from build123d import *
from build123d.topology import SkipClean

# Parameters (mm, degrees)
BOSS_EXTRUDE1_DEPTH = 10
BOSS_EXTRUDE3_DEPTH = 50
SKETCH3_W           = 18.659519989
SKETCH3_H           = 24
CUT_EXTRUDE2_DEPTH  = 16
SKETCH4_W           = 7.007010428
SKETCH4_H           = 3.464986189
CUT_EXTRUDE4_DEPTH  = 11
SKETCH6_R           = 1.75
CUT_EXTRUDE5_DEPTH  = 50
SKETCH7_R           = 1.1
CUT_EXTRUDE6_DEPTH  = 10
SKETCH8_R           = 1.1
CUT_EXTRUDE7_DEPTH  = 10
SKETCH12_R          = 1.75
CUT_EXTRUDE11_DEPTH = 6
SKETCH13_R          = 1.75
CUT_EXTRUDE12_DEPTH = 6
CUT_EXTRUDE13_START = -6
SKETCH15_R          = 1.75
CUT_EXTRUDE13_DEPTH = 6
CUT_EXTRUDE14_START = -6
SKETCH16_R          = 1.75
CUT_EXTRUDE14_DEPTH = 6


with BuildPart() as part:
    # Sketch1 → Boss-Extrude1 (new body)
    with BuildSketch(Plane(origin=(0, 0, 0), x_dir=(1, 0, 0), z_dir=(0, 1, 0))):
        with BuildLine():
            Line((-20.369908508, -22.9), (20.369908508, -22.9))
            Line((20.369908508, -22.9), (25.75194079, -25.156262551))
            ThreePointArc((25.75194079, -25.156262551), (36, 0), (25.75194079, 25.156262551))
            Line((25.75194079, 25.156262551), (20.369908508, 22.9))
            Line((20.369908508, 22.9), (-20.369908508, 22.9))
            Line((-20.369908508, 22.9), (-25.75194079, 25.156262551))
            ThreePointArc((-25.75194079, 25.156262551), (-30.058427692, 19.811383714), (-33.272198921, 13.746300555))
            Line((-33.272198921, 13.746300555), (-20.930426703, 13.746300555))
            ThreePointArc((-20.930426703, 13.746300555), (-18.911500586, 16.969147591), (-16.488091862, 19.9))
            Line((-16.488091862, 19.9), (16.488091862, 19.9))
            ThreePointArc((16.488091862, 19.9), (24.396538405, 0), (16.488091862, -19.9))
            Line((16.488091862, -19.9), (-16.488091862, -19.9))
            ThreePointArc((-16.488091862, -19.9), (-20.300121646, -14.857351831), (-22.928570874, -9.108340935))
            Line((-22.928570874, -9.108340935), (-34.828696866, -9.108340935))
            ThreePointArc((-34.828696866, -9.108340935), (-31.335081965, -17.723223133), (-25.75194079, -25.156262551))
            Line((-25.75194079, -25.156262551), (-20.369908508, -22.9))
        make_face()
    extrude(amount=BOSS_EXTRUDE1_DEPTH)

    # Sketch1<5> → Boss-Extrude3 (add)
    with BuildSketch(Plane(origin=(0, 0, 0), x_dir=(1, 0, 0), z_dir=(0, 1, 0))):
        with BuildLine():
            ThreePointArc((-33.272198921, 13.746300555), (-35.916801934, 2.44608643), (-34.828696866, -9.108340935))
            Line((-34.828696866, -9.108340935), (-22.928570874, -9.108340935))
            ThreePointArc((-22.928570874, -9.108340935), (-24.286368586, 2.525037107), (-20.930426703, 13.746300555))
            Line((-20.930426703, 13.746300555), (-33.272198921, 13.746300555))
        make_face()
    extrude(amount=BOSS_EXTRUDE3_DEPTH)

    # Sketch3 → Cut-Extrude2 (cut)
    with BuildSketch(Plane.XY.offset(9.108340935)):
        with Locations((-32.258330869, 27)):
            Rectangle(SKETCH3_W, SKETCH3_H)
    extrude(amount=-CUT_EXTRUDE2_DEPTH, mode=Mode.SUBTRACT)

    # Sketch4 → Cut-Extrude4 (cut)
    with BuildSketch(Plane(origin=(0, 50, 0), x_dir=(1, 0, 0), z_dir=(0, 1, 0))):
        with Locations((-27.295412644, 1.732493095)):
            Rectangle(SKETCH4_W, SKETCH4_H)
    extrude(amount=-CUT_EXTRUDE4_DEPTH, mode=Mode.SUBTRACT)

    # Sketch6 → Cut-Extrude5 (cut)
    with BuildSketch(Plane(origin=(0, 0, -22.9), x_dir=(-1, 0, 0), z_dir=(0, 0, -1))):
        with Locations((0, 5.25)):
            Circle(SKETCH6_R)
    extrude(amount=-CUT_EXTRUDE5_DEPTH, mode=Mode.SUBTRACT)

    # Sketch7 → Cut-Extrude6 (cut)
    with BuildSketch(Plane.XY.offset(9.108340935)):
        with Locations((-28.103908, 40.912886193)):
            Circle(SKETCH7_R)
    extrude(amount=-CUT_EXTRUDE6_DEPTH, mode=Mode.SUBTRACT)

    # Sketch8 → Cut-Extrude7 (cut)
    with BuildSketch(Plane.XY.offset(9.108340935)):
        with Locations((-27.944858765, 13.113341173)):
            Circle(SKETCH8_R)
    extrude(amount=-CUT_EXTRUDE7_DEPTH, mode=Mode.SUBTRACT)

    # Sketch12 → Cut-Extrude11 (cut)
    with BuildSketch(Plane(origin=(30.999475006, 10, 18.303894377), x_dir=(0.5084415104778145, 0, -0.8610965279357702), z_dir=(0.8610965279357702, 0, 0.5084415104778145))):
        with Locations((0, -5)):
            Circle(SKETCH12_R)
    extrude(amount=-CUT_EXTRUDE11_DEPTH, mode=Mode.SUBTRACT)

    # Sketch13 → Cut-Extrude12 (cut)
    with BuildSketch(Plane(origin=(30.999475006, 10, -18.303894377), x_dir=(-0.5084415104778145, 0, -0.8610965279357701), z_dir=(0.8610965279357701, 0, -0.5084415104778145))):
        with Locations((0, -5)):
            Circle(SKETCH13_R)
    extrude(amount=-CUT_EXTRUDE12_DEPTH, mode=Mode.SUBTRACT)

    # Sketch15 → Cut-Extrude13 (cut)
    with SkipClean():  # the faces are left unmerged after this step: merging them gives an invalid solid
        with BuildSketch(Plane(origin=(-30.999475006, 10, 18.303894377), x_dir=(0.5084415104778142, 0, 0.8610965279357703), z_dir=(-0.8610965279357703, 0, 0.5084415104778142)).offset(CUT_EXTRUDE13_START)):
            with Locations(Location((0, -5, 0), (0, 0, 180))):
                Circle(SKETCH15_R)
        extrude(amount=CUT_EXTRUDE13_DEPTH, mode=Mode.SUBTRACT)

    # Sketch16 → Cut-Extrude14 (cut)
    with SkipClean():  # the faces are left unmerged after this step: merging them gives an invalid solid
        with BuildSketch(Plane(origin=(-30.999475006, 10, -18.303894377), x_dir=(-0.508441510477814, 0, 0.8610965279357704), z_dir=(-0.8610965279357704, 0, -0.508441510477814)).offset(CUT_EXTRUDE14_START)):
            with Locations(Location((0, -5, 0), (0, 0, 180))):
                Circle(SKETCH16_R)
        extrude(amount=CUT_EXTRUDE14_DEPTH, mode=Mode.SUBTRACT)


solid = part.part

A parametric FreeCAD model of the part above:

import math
import FreeCAD as App
import Part
import Sketcher


def add_polygon(sketch, points):
    """Adds a closed chain of lines whose ends are joined by coincident constraints."""
    first, n = sketch.GeometryCount, len(points)
    for a, b in zip(points, points[1:] + points[:1]):
        sketch.addGeometry(Part.LineSegment(App.Vector(*a, 0), App.Vector(*b, 0)), False)
    for i in range(n):
        sketch.addConstraint(Sketcher.Constraint("Coincident", first + i, 2, first + (i + 1) % n, 1))

doc = App.newDocument("Part")
params = doc.addObject("Spreadsheet::Sheet", "Params")
for row, (alias, value) in enumerate([
    ("sketch1_radius", "36 mm"),
    ("pad1_length", "10 mm"),
    ("sketch2_radius", "36 mm"),
    ("pad2_length", "50 mm"),
    ("sketch3_height", "24 mm"),
    ("pocket1_length", "16 mm"),
    ("pocket2_length", "11 mm"),
    ("sketch5_diameter", "3.5 mm"),
    ("pocket3_length", "50 mm"),
    ("sketch6_diameter", "2.2 mm"),
    ("pocket4_length", "10 mm"),
    ("sketch7_diameter", "2.2 mm"),
    ("pocket5_length", "10 mm"),
    ("sketch8_diameter", "3.5 mm"),
    ("pocket6_length", "6 mm"),
    ("sketch9_diameter", "3.5 mm"),
    ("pocket7_length", "6 mm"),
    ("sketch10_diameter", "3.5 mm"),
    ("pocket8_length", "6 mm"),
    ("sketch11_diameter", "3.5 mm"),
    ("pocket9_length", "6 mm"),
], start=1):
    params.set(f"A{row}", alias)
    params.set(f"B{row}", "=" + value)
    params.setAlias(f"B{row}", alias)

body = doc.addObject("PartDesign::Body", "Body")

sketch1 = doc.addObject("Sketcher::SketchObject", "Sketch")
body.addObject(sketch1)
sketch1.AttachmentSupport = (doc.XZ_Plane, [""])
sketch1.MapMode = "FlatFace"
sketch1.addGeometry(Part.LineSegment(App.Vector(-20, 23, 0), App.Vector(20, 23, 0)), False)
sketch1.addGeometry(Part.LineSegment(App.Vector(20, 23, 0), App.Vector(26, 25, 0)), False)
sketch1.addGeometry(Part.ArcOfCircle(Part.Circle(App.Vector(0, 0, 0), App.Vector(0, 0, 1), 36), math.radians(-44), math.radians(44)), False)
sketch1.addGeometry(Part.LineSegment(App.Vector(26, -25, 0), App.Vector(20, -23, 0)), False)
sketch1.addGeometry(Part.LineSegment(App.Vector(20, -23, 0), App.Vector(-20, -23, 0)), False)
sketch1.addGeometry(Part.LineSegment(App.Vector(-20, -23, 0), App.Vector(-26, -25, 0)), False)
sketch1.addGeometry(Part.ArcOfCircle(Part.Circle(App.Vector(0, 0, 0), App.Vector(0, 0, 1), 36), math.radians(-158), math.radians(-136)), False)
sketch1.addGeometry(Part.LineSegment(App.Vector(-33, -14, 0), App.Vector(-21, -14, 0)), False)
sketch1.addGeometry(Part.ArcOfCircle(Part.Circle(App.Vector(5, 0, 0), App.Vector(0, 0, 1), 29), math.radians(-151.7), math.radians(-136.65)), False)
sketch1.addGeometry(Part.LineSegment(App.Vector(-16, -20, 0), App.Vector(16, -20, 0)), False)
sketch1.addGeometry(Part.ArcOfCircle(Part.Circle(App.Vector(-5, 0, 0), App.Vector(0, 0, 1), 29), math.radians(-43), math.radians(43)), False)
sketch1.addGeometry(Part.LineSegment(App.Vector(16, 20, 0), App.Vector(-16, 20, 0)), False)
sketch1.addGeometry(Part.ArcOfCircle(Part.Circle(App.Vector(5, 0, 0), App.Vector(0, 0, 1), 29), math.radians(137), math.radians(162)), False)
sketch1.addGeometry(Part.LineSegment(App.Vector(-23, 9, 0), App.Vector(-35, 9, 0)), False)
sketch1.addGeometry(Part.ArcOfCircle(Part.Circle(App.Vector(0, 0, 0), App.Vector(0, 0, 1), 36), math.radians(136), math.radians(165)), False)
sketch1.addGeometry(Part.LineSegment(App.Vector(-26, 25, 0), App.Vector(-20, 23, 0)), False)
sketch1.addConstraint(Sketcher.Constraint("Coincident", 0, 2, 1, 1))
sketch1.addConstraint(Sketcher.Constraint("Coincident", 1, 2, 2, 2))
sketch1.addConstraint(Sketcher.Constraint("Coincident", 2, 1, 3, 1))
sketch1.addConstraint(Sketcher.Constraint("Coincident", 3, 2, 4, 1))
sketch1.addConstraint(Sketcher.Constraint("Coincident", 4, 2, 5, 1))
sketch1.addConstraint(Sketcher.Constraint("Coincident", 5, 2, 6, 2))
sketch1.addConstraint(Sketcher.Constraint("Coincident", 6, 1, 7, 1))
sketch1.addConstraint(Sketcher.Constraint("Coincident", 7, 2, 8, 1))
sketch1.addConstraint(Sketcher.Constraint("Coincident", 8, 2, 9, 1))
sketch1.addConstraint(Sketcher.Constraint("Coincident", 9, 2, 10, 1))
sketch1.addConstraint(Sketcher.Constraint("Coincident", 10, 2, 11, 1))
sketch1.addConstraint(Sketcher.Constraint("Coincident", 11, 2, 12, 1))
sketch1.addConstraint(Sketcher.Constraint("Coincident", 12, 2, 13, 1))
sketch1.addConstraint(Sketcher.Constraint("Coincident", 13, 2, 14, 2))
sketch1.addConstraint(Sketcher.Constraint("Coincident", 14, 1, 15, 1))
sketch1.addConstraint(Sketcher.Constraint("Coincident", 15, 2, 0, 1))
sketch1.addConstraint(Sketcher.Constraint("Horizontal", 0))
sketch1.addConstraint(Sketcher.Constraint("Horizontal", 4))
sketch1.addConstraint(Sketcher.Constraint("Horizontal", 7))
sketch1.addConstraint(Sketcher.Constraint("Horizontal", 9))
sketch1.addConstraint(Sketcher.Constraint("Horizontal", 11))
sketch1.addConstraint(Sketcher.Constraint("Horizontal", 13))
sketch1.addConstraint(Sketcher.Constraint("Coincident", 2, 3, -1, 1))
sketch1.addConstraint(Sketcher.Constraint("Coincident", 6, 3, -1, 1))
sketch1.addConstraint(Sketcher.Constraint("Coincident", 14, 3, -1, 1))
sketch1.addConstraint(Sketcher.Constraint("Coincident", 12, 3, 8, 3))
sketch1.addConstraint(Sketcher.Constraint("Equal", 2, 6))
sketch1.addConstraint(Sketcher.Constraint("Equal", 8, 10))
sketch1.addConstraint(Sketcher.Constraint("Equal", 10, 12))
sketch1.addConstraint(Sketcher.Constraint("Equal", 6, 14))
sketch1.addConstraint(Sketcher.Constraint("Symmetric", 8, 3, 10, 3, -1, 1))
sketch1.addConstraint(Sketcher.Constraint("Symmetric", 0, 2, 4, 2, -1, 1))
sketch1.addConstraint(Sketcher.Constraint("Symmetric", 9, 2, 10, 2, -1))
sketch1.addConstraint(Sketcher.Constraint("Parallel", 1, 5))
sketch1.addConstraint(Sketcher.Constraint("Parallel", 3, 15))
sketch1.addConstraint(Sketcher.Constraint("Horizontal", 2, 1, 5, 2))
sketch1.addConstraint(Sketcher.Constraint("Horizontal", 1, 2, 14, 1))
sketch1.addConstraint(Sketcher.Constraint("Vertical", 0, 2, 3, 2))
sketch1.addConstraint(Sketcher.Constraint("Radius", 2, 36.0))
sketch1.addConstraint(Sketcher.Constraint("DistanceY", 4, 2, 8, 2, 3.0))
sketch1.addConstraint(Sketcher.Constraint("DistanceY", -1, 1, 0, 2, 22.9))
sketch1.addConstraint(Sketcher.Constraint("Radius", 8, 28.991378))
sketch1.addConstraint(Sketcher.Constraint("DistanceX", 6, 1, -1, 1, 33.272199))
sketch1.addConstraint(Sketcher.Constraint("DistanceX", 12, 3, 1, 2, 21.157101))
sketch1.addConstraint(Sketcher.Constraint("DistanceX", 0, 1, 0, 2, 40.739817))
sketch1.addConstraint(Sketcher.Constraint("DistanceX", 7, 1, 7, 2, 12.341772))
sketch1.addConstraint(Sketcher.Constraint("DistanceX", 13, 2, 13, 1, 11.900126))
sketch1.setExpression("Constraints[38]", "Params.sketch1_radius")
pad1 = doc.addObject("PartDesign::Pad", "Pad")
body.addObject(pad1)
pad1.Profile = sketch1
pad1.setExpression("Length", "Params.pad1_length")
pad1.Reversed = True

sketch2 = doc.addObject("Sketcher::SketchObject", "Sketch001")
body.addObject(sketch2)
sketch2.AttachmentSupport = (doc.XZ_Plane, [""])
sketch2.MapMode = "FlatFace"
sketch2.addGeometry(Part.ArcOfCircle(Part.Circle(App.Vector(0, 0, 0), App.Vector(0, 0, 1), 36), math.radians(165), math.radians(202)), False)
sketch2.addGeometry(Part.LineSegment(App.Vector(-35, 9, 0), App.Vector(-23, 9, 0)), False)
sketch2.addGeometry(Part.ArcOfCircle(Part.Circle(App.Vector(5, 0, 0), App.Vector(0, 0, 1), 29), math.radians(162), math.radians(208)), False)
sketch2.addGeometry(Part.LineSegment(App.Vector(-21, -14, 0), App.Vector(-33, -14, 0)), False)
sketch2.addConstraint(Sketcher.Constraint("Coincident", 0, 1, 1, 1))
sketch2.addConstraint(Sketcher.Constraint("Coincident", 1, 2, 2, 1))
sketch2.addConstraint(Sketcher.Constraint("Coincident", 2, 2, 3, 1))
sketch2.addConstraint(Sketcher.Constraint("Coincident", 3, 2, 0, 2))
sketch2.addConstraint(Sketcher.Constraint("Horizontal", 1))
sketch2.addConstraint(Sketcher.Constraint("Horizontal", 3))
sketch2.addConstraint(Sketcher.Constraint("Coincident", 0, 3, -1, 1))
sketch2.addConstraint(Sketcher.Constraint("PointOnObject", 2, 3, -1))
sketch2.addConstraint(Sketcher.Constraint("Radius", 0, 36.0))
sketch2.addConstraint(Sketcher.Constraint("Radius", 2, 28.991378))
sketch2.addConstraint(Sketcher.Constraint("DistanceY", 2, 2, -1, 1, 13.746301))
sketch2.addConstraint(Sketcher.Constraint("DistanceX", 1, 1, 1, 2, 11.900126))
sketch2.addConstraint(Sketcher.Constraint("DistanceX", 3, 2, 3, 1, 12.341772))
sketch2.setExpression("Constraints[8]", "Params.sketch2_radius")
pad2 = doc.addObject("PartDesign::Pad", "Pad001")
body.addObject(pad2)
pad2.Profile = sketch2
pad2.setExpression("Length", "Params.pad2_length")
pad2.Reversed = True

sketch3 = doc.addObject("Sketcher::SketchObject", "Sketch002")
body.addObject(sketch3)
sketch3.AttachmentSupport = (doc.XY_Plane, [""])
sketch3.MapMode = "FlatFace"
sketch3.AttachmentOffset = App.Placement(App.Vector(0, 0, 9.108341), App.Rotation())
add_polygon(sketch3, [(-42, 39), (-42, 15), (-23, 15), (-23, 39)])
sketch3.addConstraint(Sketcher.Constraint("Vertical", 0))
sketch3.addConstraint(Sketcher.Constraint("Horizontal", 1))
sketch3.addConstraint(Sketcher.Constraint("Vertical", 2))
sketch3.addConstraint(Sketcher.Constraint("Horizontal", 3))
sketch3.addConstraint(Sketcher.Constraint("DistanceY", 0, 2, 0, 1, 24.0))
sketch3.addConstraint(Sketcher.Constraint("DistanceY", -1, 1, 0, 2, 15.0))
sketch3.addConstraint(Sketcher.Constraint("DistanceX", 1, 1, 1, 2, 18.65952))
sketch3.addConstraint(Sketcher.Constraint("DistanceX", 0, 2, -1, 1, 41.588091))
sketch3.setExpression("Constraints[8]", "Params.sketch3_height")
pocket1 = doc.addObject("PartDesign::Pocket", "Pocket")
body.addObject(pocket1)
pocket1.Profile = sketch3
pocket1.setExpression("Length", "Params.pocket1_length")

sketch4 = doc.addObject("Sketcher::SketchObject", "Sketch003")
body.addObject(sketch4)
sketch4.AttachmentSupport = (doc.XZ_Plane, [""])
sketch4.MapMode = "FlatFace"
sketch4.AttachmentOffset = App.Placement(App.Vector(0, 0, -50), App.Rotation())
add_polygon(sketch4, [(-30.8, -3.5), (-30.8, 0), (-23.8, 0), (-23.8, -3.5)])
sketch4.addConstraint(Sketcher.Constraint("Vertical", 0))
sketch4.addConstraint(Sketcher.Constraint("Horizontal", 1))
sketch4.addConstraint(Sketcher.Constraint("Vertical", 2))
sketch4.addConstraint(Sketcher.Constraint("Horizontal", 3))
sketch4.addConstraint(Sketcher.Constraint("PointOnObject", 0, 2, -1))
sketch4.addConstraint(Sketcher.Constraint("DistanceX", 1, 1, 1, 2, 7.00701))
sketch4.addConstraint(Sketcher.Constraint("DistanceY", 0, 1, 0, 2, 3.464986))
sketch4.addConstraint(Sketcher.Constraint("DistanceX", 0, 2, -1, 1, 30.798918))
pocket2 = doc.addObject("PartDesign::Pocket", "Pocket001")
body.addObject(pocket2)
pocket2.Profile = sketch4
pocket2.setExpression("Length", "Params.pocket2_length")
pocket2.Reversed = True

sketch5 = doc.addObject("Sketcher::SketchObject", "Sketch004")
body.addObject(sketch5)
sketch5.AttachmentSupport = (doc.XY_Plane, [""])
sketch5.MapMode = "FlatFace"
sketch5.AttachmentOffset = App.Placement(App.Vector(0, 0, -22.9), App.Rotation())
sketch5.addGeometry(Part.Circle(App.Vector(0, 5.2, 0), App.Vector(0, 0, 1), 1.8), False)
sketch5.addConstraint(Sketcher.Constraint("PointOnObject", 0, 3, -2))
sketch5.addConstraint(Sketcher.Constraint("Diameter", 0, 3.5))
sketch5.addConstraint(Sketcher.Constraint("DistanceY", -1, 1, 0, 3, 5.25))
sketch5.setExpression("Constraints[1]", "Params.sketch5_diameter")
pocket3 = doc.addObject("PartDesign::Pocket", "Pocket002")
body.addObject(pocket3)
pocket3.Profile = sketch5
pocket3.setExpression("Length", "Params.pocket3_length")
pocket3.Reversed = True

sketch6 = doc.addObject("Sketcher::SketchObject", "Sketch005")
body.addObject(sketch6)
sketch6.AttachmentSupport = (doc.XY_Plane, [""])
sketch6.MapMode = "FlatFace"
sketch6.AttachmentOffset = App.Placement(App.Vector(0, 0, 9.108341), App.Rotation())
sketch6.addGeometry(Part.Circle(App.Vector(-28.1, 40.9, 0), App.Vector(0, 0, 1), 1.1), False)
sketch6.addConstraint(Sketcher.Constraint("Diameter", 0, 2.2))
sketch6.addConstraint(Sketcher.Constraint("DistanceX", 0, 3, -1, 1, 28.103908))
sketch6.addConstraint(Sketcher.Constraint("DistanceY", -1, 1, 0, 3, 40.912886))
sketch6.setExpression("Constraints[0]", "Params.sketch6_diameter")
pocket4 = doc.addObject("PartDesign::Pocket", "Pocket003")
body.addObject(pocket4)
pocket4.Profile = sketch6
pocket4.setExpression("Length", "Params.pocket4_length")

sketch7 = doc.addObject("Sketcher::SketchObject", "Sketch006")
body.addObject(sketch7)
sketch7.AttachmentSupport = (doc.XY_Plane, [""])
sketch7.MapMode = "FlatFace"
sketch7.AttachmentOffset = App.Placement(App.Vector(0, 0, 9.108341), App.Rotation())
sketch7.addGeometry(Part.Circle(App.Vector(-27.9, 13.1, 0), App.Vector(0, 0, 1), 1.1), False)
sketch7.addConstraint(Sketcher.Constraint("Diameter", 0, 2.2))
sketch7.addConstraint(Sketcher.Constraint("DistanceX", 0, 3, -1, 1, 27.944859))
sketch7.addConstraint(Sketcher.Constraint("DistanceY", -1, 1, 0, 3, 13.113341))
sketch7.setExpression("Constraints[0]", "Params.sketch7_diameter")
pocket5 = doc.addObject("PartDesign::Pocket", "Pocket004")
body.addObject(pocket5)
pocket5.Profile = sketch7
pocket5.setExpression("Length", "Params.pocket5_length")

sketch8 = doc.addObject("Sketcher::SketchObject", "Sketch007")
body.addObject(sketch8)
sketch8.Placement = App.Placement(App.Vector(30.999475, 10, 18.303894), App.Rotation(App.Vector(0.50844151, 0, -0.861096528), App.Vector(0, 1, 0), App.Vector(0.861096528, 0, 0.50844151), "ZXY"))
sketch8.addGeometry(Part.Circle(App.Vector(0, -5, 0), App.Vector(0, 0, 1), 1.8), False)
sketch8.addConstraint(Sketcher.Constraint("PointOnObject", 0, 3, -2))
sketch8.addConstraint(Sketcher.Constraint("Diameter", 0, 3.5))
sketch8.addConstraint(Sketcher.Constraint("DistanceY", 0, 3, -1, 1, 5.0))
sketch8.setExpression("Constraints[1]", "Params.sketch8_diameter")
pocket6 = doc.addObject("PartDesign::Pocket", "Pocket005")
body.addObject(pocket6)
pocket6.Profile = sketch8
pocket6.setExpression("Length", "Params.pocket6_length")

sketch9 = doc.addObject("Sketcher::SketchObject", "Sketch008")
body.addObject(sketch9)
sketch9.Placement = App.Placement(App.Vector(30.999475, 10, -18.303894), App.Rotation(App.Vector(-0.50844151, 0, -0.861096528), App.Vector(0, 1, 0), App.Vector(0.861096528, 0, -0.50844151), "ZXY"))
sketch9.addGeometry(Part.Circle(App.Vector(0, -5, 0), App.Vector(0, 0, 1), 1.8), False)
sketch9.addConstraint(Sketcher.Constraint("PointOnObject", 0, 3, -2))
sketch9.addConstraint(Sketcher.Constraint("Diameter", 0, 3.5))
sketch9.addConstraint(Sketcher.Constraint("DistanceY", 0, 3, -1, 1, 5.0))
sketch9.setExpression("Constraints[1]", "Params.sketch9_diameter")
pocket7 = doc.addObject("PartDesign::Pocket", "Pocket006")
body.addObject(pocket7)
pocket7.Profile = sketch9
pocket7.setExpression("Length", "Params.pocket7_length")

sketch10 = doc.addObject("Sketcher::SketchObject", "Sketch009")
body.addObject(sketch10)
sketch10.Placement = App.Placement(App.Vector(-25.832896, 10, 15.253245), App.Rotation(App.Vector(0.50844151, 0, 0.861096528), App.Vector(0, 1, 0), App.Vector(-0.861096528, 0, 0.50844151), "ZXY"))
sketch10.addGeometry(Part.Circle(App.Vector(0, -5, 0), App.Vector(0, 0, 1), 1.8), False)
sketch10.addConstraint(Sketcher.Constraint("PointOnObject", 0, 3, -2))
sketch10.addConstraint(Sketcher.Constraint("Diameter", 0, 3.5))
sketch10.addConstraint(Sketcher.Constraint("DistanceY", 0, 3, -1, 1, 5.0))
sketch10.setExpression("Constraints[1]", "Params.sketch10_diameter")
pocket8 = doc.addObject("PartDesign::Pocket", "Pocket007")
body.addObject(pocket8)
pocket8.Profile = sketch10
pocket8.setExpression("Length", "Params.pocket8_length")
pocket8.Reversed = True

sketch11 = doc.addObject("Sketcher::SketchObject", "Sketch010")
body.addObject(sketch11)
sketch11.Placement = App.Placement(App.Vector(-25.832896, 10, -15.253245), App.Rotation(App.Vector(-0.50844151, 0, 0.861096528), App.Vector(0, 1, 0), App.Vector(-0.861096528, 0, -0.50844151), "ZXY"))
sketch11.addGeometry(Part.Circle(App.Vector(0, -5, 0), App.Vector(0, 0, 1), 1.8), False)
sketch11.addConstraint(Sketcher.Constraint("PointOnObject", 0, 3, -2))
sketch11.addConstraint(Sketcher.Constraint("Diameter", 0, 3.5))
sketch11.addConstraint(Sketcher.Constraint("DistanceY", 0, 3, -1, 1, 5.0))
sketch11.setExpression("Constraints[1]", "Params.sketch11_diameter")
pocket9 = doc.addObject("PartDesign::Pocket", "Pocket008")
body.addObject(pocket9)
pocket9.Profile = sketch11
pocket9.setExpression("Length", "Params.pocket9_length")
pocket9.Reversed = True

doc.recompute()
